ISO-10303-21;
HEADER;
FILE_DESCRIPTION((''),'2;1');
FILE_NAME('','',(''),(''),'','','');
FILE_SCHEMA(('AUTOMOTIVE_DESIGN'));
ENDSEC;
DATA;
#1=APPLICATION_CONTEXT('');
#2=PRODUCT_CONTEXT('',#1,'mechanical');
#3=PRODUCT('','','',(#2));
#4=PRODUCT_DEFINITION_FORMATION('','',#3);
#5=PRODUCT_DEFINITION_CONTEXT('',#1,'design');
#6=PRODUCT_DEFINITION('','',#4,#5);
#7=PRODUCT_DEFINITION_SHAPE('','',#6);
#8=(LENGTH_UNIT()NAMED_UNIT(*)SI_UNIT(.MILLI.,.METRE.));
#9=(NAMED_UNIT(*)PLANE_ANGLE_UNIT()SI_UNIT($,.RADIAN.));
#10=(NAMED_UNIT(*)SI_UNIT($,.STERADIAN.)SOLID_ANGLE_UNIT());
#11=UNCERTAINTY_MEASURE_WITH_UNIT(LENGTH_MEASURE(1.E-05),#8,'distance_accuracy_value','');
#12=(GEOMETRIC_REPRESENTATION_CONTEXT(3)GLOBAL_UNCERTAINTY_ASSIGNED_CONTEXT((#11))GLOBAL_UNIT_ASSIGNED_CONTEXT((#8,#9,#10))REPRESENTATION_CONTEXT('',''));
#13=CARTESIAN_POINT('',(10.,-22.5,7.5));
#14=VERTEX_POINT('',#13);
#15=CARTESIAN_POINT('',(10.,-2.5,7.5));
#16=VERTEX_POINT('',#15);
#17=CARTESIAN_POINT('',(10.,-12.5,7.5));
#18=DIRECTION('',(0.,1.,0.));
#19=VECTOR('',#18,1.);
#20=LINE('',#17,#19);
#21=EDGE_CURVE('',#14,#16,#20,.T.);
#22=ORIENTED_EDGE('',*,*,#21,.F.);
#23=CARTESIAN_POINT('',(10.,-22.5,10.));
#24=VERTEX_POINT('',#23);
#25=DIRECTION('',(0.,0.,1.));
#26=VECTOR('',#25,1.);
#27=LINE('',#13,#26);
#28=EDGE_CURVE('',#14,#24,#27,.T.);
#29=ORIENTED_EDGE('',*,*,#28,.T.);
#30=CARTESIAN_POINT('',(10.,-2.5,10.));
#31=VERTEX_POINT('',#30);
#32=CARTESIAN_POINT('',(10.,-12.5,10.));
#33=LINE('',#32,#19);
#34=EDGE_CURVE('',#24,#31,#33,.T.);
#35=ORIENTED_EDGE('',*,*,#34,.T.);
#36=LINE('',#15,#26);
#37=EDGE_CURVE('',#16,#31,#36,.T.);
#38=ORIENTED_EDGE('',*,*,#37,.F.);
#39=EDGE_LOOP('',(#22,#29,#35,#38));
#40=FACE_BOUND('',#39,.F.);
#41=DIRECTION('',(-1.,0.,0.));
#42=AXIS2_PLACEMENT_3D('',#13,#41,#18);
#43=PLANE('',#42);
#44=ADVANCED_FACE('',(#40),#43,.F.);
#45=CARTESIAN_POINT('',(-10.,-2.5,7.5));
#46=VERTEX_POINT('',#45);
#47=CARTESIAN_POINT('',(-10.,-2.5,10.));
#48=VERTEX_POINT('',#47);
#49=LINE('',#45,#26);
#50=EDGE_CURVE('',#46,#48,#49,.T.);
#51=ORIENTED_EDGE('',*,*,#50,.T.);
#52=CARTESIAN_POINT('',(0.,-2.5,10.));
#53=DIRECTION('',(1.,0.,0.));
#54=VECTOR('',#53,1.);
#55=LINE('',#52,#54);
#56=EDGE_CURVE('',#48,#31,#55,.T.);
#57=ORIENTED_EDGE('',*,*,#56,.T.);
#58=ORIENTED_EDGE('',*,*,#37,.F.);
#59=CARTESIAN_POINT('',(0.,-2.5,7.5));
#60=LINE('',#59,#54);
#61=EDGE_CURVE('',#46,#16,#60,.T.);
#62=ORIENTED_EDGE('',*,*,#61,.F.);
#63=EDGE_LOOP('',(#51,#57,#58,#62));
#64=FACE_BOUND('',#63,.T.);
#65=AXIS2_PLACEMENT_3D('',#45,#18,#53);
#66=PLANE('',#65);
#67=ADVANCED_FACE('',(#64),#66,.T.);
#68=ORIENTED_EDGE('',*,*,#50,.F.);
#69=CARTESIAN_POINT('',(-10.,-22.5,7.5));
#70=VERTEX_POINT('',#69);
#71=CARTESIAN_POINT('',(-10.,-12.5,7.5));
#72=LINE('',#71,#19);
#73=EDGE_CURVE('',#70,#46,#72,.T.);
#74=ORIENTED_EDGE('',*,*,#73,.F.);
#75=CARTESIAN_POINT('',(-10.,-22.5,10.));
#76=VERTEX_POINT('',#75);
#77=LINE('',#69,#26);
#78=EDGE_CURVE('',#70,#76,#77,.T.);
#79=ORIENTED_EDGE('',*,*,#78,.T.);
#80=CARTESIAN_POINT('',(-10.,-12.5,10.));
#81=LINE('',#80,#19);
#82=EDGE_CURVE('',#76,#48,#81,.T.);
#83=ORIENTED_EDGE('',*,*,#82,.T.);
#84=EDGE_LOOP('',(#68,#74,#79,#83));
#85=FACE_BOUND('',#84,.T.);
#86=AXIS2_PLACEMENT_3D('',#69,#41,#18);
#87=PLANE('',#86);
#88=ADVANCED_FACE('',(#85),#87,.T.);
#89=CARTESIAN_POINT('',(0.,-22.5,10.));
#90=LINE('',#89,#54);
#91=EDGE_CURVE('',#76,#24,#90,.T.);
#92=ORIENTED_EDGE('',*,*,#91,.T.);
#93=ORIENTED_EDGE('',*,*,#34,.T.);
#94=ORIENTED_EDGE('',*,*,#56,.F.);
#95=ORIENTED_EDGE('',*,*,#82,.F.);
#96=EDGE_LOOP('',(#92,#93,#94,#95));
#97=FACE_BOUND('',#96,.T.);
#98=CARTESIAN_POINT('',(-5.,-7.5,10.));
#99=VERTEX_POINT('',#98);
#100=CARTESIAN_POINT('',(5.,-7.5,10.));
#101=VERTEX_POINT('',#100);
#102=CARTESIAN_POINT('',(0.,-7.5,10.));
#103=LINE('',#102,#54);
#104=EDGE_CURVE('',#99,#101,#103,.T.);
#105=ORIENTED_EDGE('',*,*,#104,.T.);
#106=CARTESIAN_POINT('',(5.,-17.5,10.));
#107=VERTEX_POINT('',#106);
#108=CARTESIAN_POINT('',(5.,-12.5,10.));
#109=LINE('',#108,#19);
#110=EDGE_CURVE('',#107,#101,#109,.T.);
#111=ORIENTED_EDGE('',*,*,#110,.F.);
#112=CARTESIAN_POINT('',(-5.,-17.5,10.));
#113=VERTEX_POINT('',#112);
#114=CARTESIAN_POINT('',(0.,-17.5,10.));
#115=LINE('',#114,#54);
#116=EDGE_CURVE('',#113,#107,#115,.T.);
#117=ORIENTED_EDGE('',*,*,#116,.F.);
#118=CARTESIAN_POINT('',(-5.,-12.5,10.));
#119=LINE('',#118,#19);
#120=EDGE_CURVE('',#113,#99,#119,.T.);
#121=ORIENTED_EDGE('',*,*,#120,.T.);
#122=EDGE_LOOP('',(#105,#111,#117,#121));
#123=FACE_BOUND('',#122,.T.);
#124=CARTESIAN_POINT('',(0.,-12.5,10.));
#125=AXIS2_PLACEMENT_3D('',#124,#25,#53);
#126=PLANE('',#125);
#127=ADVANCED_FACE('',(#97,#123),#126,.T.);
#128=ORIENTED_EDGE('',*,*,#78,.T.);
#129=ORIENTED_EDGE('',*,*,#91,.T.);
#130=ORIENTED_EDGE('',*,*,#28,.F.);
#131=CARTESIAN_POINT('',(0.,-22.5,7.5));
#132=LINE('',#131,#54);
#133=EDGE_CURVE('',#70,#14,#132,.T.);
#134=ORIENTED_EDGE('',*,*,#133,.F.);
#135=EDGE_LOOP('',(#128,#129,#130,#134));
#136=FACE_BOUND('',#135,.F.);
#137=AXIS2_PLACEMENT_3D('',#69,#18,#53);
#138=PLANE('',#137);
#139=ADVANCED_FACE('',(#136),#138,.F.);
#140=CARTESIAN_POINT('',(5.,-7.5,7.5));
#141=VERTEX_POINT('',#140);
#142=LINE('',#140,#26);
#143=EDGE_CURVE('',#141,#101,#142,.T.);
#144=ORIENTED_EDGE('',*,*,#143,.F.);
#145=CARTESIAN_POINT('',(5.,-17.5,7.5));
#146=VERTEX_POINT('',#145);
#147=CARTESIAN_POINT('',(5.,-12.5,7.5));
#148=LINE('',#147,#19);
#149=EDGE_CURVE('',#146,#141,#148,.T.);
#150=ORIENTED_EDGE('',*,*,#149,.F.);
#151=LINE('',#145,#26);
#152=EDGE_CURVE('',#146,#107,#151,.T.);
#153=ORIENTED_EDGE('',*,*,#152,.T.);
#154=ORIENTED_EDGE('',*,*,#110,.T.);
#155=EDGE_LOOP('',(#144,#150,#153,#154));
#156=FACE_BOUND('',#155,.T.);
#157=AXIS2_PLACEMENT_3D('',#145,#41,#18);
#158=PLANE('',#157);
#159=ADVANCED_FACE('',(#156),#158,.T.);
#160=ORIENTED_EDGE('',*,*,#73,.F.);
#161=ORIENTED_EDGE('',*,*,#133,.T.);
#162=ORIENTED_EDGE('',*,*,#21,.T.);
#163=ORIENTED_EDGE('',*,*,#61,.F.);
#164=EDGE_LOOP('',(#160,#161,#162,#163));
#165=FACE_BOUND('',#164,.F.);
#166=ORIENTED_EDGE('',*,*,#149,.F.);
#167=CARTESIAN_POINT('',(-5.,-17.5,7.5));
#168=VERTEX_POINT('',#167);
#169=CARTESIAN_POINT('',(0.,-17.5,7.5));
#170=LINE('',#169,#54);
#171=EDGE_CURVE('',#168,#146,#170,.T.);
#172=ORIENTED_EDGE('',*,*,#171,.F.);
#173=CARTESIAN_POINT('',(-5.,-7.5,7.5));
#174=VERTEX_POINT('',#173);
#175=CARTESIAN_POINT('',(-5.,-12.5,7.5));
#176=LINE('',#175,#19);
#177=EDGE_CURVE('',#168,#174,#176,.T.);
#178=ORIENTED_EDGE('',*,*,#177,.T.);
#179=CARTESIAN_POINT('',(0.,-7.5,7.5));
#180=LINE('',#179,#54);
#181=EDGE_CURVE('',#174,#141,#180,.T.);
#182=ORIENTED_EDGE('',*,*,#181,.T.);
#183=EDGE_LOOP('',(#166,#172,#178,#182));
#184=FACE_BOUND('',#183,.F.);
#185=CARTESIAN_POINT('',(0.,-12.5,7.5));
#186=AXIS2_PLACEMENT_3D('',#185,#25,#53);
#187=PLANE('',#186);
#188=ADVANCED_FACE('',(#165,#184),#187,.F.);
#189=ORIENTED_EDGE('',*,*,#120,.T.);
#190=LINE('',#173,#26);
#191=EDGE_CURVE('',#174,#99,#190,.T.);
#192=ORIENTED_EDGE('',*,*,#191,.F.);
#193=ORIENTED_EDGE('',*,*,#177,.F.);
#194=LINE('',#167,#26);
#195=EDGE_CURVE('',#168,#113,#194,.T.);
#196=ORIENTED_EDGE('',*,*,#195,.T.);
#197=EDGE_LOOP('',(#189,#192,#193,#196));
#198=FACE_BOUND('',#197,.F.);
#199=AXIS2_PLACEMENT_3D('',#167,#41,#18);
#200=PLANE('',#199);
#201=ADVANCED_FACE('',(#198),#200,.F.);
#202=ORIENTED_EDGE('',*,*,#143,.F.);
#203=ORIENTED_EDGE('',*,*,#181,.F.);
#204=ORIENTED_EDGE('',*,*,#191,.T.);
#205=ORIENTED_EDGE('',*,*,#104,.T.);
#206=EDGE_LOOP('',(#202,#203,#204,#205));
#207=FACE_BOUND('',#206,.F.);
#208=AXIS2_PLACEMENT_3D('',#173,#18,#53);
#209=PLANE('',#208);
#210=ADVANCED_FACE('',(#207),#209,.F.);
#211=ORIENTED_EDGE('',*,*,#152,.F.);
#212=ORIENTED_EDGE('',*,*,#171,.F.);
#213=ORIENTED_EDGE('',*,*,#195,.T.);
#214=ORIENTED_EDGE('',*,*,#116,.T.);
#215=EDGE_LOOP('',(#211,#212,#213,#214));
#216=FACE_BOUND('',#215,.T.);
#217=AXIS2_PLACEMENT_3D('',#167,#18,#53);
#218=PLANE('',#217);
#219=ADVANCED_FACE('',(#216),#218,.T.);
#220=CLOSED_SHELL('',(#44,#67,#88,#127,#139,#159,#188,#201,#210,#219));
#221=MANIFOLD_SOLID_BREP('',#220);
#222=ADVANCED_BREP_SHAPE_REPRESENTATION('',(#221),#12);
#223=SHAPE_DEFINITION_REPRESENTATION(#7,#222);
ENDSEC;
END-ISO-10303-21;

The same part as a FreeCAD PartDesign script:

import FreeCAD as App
import Part
import Sketcher
from FreeCAD import Vector
Q = App.Units.Quantity


def add_polygon(sketch, points):
    """Adds a closed chain of lines whose ends are joined by coincident constraints."""
    first, n = sketch.GeometryCount, len(points)
    for a, b in zip(points, points[1:] + points[:1]):
        sketch.addGeometry(Part.LineSegment(App.Vector(*a, 0), App.Vector(*b, 0)), False)
    for i in range(n):
        sketch.addConstraint(Sketcher.Constraint("Coincident", first + i, 2, first + (i + 1) % n, 1))

doc = App.newDocument("Part")
body = doc.addObject("PartDesign::Body", "Body")

# Sketch on XZ plane
sketch1 = body.newObject("Sketcher::SketchObject", "Sketch")
sketch1.AttachmentSupport = (doc.getObject("XZ_Plane"), [""])
sketch1.MapMode = "FlatFace"
add_polygon(sketch1, [(-10, 10), (-10, -10), (10, -10), (10, 10)])  # lines 0-3
add_polygon(sketch1, [(5, -5), (-5, -5), (-5, 5), (5, 5)])  # lines 4-7
sketch1.addConstraint([
    Sketcher.Constraint("Vertical", 0),
    Sketcher.Constraint("Horizontal", 1),
    Sketcher.Constraint("Vertical", 2),
    Sketcher.Constraint("Horizontal", 3),
    Sketcher.Constraint("Horizontal", 4),
    Sketcher.Constraint("Vertical", 5),
    Sketcher.Constraint("Horizontal", 6),
    Sketcher.Constraint("Vertical", 7),
    Sketcher.Constraint("Symmetric", 0, 2, 2, 2, -1, 1),
    Sketcher.Constraint("Symmetric", 4, 2, 6, 2, -1, 1),
    Sketcher.Constraint("Equal", 3, 0),
    Sketcher.Constraint("Equal", 6, 5),
    Sketcher.Constraint("DistanceX", 1, 1, 1, 2, Q("20 mm")),
    Sketcher.Constraint("DistanceX", 4, 2, 4, 1, Q("10 mm")),
])
pad1 = body.newObject("PartDesign::Pad", "Pad")
pad1.Profile = sketch1
pad1.Length = 2.5
body2 = doc.addObject("PartDesign::Body", "Body001")
doc.recompute()

body.Placement = App.Placement(Vector(0, -12.5, 7.5), App.Rotation(Vector(-1, 0, 0), 90))
boolean = body2.newObject("PartDesign::Boolean", "Boolean")
boolean.Type = "Fuse"
boolean.addObjects([body])

doc.recompute()
